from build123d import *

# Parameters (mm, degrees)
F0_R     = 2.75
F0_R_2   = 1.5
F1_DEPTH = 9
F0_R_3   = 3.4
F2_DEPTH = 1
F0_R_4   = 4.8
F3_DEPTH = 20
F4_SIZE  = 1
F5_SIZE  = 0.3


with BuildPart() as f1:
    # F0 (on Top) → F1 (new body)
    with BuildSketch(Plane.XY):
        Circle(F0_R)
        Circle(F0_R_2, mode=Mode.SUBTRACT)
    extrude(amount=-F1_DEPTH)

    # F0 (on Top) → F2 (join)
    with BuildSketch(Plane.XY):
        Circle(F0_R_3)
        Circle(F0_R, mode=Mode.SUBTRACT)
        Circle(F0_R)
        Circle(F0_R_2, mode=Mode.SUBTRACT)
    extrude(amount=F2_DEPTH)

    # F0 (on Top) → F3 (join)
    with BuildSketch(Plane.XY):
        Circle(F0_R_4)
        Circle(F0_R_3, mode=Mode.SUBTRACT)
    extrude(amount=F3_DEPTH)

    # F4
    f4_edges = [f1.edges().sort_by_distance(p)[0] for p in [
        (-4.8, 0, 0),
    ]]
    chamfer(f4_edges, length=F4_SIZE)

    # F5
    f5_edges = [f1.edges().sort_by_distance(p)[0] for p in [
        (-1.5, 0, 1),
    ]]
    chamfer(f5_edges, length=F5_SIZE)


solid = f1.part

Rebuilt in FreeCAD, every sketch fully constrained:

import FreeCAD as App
import Part
import Sketcher


def edges_at(feature, points):
    """Names of the edges that pass closest to the given points."""
    edges = feature.Shape.Edges
    near = lambda p: min(range(len(edges)), key=lambda i: edges[i].distToShape(Part.Vertex(*p))[0])
    return sorted({f"Edge{near(p) + 1}" for p in points})

doc = App.newDocument("Part")
body = doc.addObject("PartDesign::Body", "Body")

# Sketch on XY plane
sketch1 = body.newObject("Sketcher::SketchObject", "Sketch")
sketch1.AttachmentSupport = (doc.getObject("XY_Plane"), [""])
sketch1.MapMode = "FlatFace"
sketch1.addGeometry([
    Part.Circle(App.Vector(0, 0, 0), App.Vector(0, 0, 1), 2.8),
    Part.Circle(App.Vector(0, 0, 0), App.Vector(0, 0, 1), 1.5),
], False)
sketch1.addConstraint([
    Sketcher.Constraint("Coincident", 0, 3, -1, 1),
    Sketcher.Constraint("Coincident", 1, 3, -1, 1),
    Sketcher.Constraint("Diameter", 1, 3.0),
    Sketcher.Constraint("Diameter", 0, 5.5),
])
pad1 = body.newObject("PartDesign::Pad", "Pad")
pad1.Profile = sketch1
pad1.Length = 9
pad1.Reversed = True

# Sketch on XY plane
sketch2 = body.newObject("Sketcher::SketchObject", "Sketch001")
sketch2.AttachmentSupport = (doc.getObject("XY_Plane"), [""])
sketch2.MapMode = "FlatFace"
sketch2.addGeometry([
    Part.Circle(App.Vector(0, 0, 0), App.Vector(0, 0, 1), 3.4),
    Part.Circle(App.Vector(0, 0, 0), App.Vector(0, 0, 1), 1.5),
], False)
sketch2.addConstraint([
    Sketcher.Constraint("Coincident", 0, 3, -1, 1),
    Sketcher.Constraint("Coincident", 1, 3, -1, 1),
    Sketcher.Constraint("Diameter", 1, 3.0),
    Sketcher.Constraint("Diameter", 0, 6.8),
])
pad2 = body.newObject("PartDesign::Pad", "Pad001")
pad2.Profile = sketch2
pad2.Length = 1

# Sketch on XY plane
sketch3 = body.newObject("Sketcher::SketchObject", "Sketch002")
sketch3.AttachmentSupport = (doc.getObject("XY_Plane"), [""])
sketch3.MapMode = "FlatFace"
sketch3.addGeometry([
    Part.Circle(App.Vector(0, 0, 0), App.Vector(0, 0, 1), 4.8),
    Part.Circle(App.Vector(0, 0, 0), App.Vector(0, 0, 1), 3.4),
], False)
sketch3.addConstraint([
    Sketcher.Constraint("Coincident", 0, 3, -1, 1),
    Sketcher.Constraint("Coincident", 1, 3, -1, 1),
    Sketcher.Constraint("Diameter", 0, 9.6),
    Sketcher.Constraint("Diameter", 1, 6.8),
])
pad3 = body.newObject("PartDesign::Pad", "Pad002")
pad3.Profile = sketch3
pad3.Length = 20
doc.recompute()

chamfer = body.newObject("PartDesign::Chamfer", "Chamfer")
chamfer.Base = (pad3, edges_at(pad3, [(-4.8, 0, 0)]))
chamfer.Size = 1
doc.recompute()

chamfer2 = body.newObject("PartDesign::Chamfer", "Chamfer001")
chamfer2.Base = (chamfer, edges_at(chamfer, [(-1.5, 0, 1)]))
chamfer2.Size = 0.3

doc.recompute()
